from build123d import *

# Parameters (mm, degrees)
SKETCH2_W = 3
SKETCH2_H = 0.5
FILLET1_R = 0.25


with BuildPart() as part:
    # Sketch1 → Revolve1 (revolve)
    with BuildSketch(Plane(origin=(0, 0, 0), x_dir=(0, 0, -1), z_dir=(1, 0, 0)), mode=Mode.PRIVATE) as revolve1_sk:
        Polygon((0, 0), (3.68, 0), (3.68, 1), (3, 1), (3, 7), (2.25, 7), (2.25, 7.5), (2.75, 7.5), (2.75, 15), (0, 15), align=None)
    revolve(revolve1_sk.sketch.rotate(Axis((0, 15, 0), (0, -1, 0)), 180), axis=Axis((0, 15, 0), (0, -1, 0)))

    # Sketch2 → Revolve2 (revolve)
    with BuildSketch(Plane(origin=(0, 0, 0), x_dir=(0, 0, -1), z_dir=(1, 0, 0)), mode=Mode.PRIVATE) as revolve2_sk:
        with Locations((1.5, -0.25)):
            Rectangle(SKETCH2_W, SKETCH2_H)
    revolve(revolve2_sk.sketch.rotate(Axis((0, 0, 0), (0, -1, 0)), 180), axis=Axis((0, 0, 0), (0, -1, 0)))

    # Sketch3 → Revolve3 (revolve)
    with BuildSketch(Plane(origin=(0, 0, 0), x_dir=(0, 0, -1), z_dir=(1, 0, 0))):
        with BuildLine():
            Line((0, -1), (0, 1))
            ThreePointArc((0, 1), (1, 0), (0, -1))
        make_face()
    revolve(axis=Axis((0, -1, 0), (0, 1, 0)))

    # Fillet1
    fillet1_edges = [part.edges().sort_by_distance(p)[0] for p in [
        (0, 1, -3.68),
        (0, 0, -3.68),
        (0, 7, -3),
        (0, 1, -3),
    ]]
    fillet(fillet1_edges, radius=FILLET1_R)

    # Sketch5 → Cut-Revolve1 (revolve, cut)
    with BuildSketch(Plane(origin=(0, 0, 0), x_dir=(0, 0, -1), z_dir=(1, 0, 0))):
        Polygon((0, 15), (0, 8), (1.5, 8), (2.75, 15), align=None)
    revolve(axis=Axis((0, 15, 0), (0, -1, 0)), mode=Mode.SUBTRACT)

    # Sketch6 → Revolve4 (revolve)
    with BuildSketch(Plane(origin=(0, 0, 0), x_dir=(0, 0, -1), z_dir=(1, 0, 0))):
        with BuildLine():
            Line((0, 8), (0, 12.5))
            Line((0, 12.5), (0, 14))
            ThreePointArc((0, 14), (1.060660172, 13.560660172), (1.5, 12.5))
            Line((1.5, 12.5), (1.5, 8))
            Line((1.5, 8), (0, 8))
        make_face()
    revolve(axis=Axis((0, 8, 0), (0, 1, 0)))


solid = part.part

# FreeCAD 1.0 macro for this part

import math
import FreeCAD as App
import Part
import Sketcher

V = App.Vector


def edges_at(feature, points):
    """Names of the edges that pass closest to the given points."""
    edges = feature.Shape.Edges
    near = lambda p: min(range(len(edges)), key=lambda i: edges[i].distToShape(Part.Vertex(*p))[0])
    return sorted({f"Edge{near(p) + 1}" for p in points})


def add_polygon(sketch, points):
    """Adds a closed chain of lines whose ends are joined by coincident constraints."""
    first, n = sketch.GeometryCount, len(points)
    for a, b in zip(points, points[1:] + points[:1]):
        sketch.addGeometry(Part.LineSegment(App.Vector(*a, 0), App.Vector(*b, 0)), False)
    for i in range(n):
        sketch.addConstraint(Sketcher.Constraint("Coincident", first + i, 2, first + (i + 1) % n, 1))

doc = App.newDocument("Part")
body = doc.addObject("PartDesign::Body", "Body")

# Sketch on YZ plane
sketch1 = body.newObject("Sketcher::SketchObject", "Sketch")
sketch1.AttachmentSupport = (doc.getObject("YZ_Plane"), [""])
sketch1.MapMode = "FlatFace"
add_polygon(sketch1, [(0, 0), (0, -3.7), (1, -3.7), (1, -3), (7, -3), (7, -2.2), (7.5, -2.2), (7.5, -2.8), (15, -2.8), (15, 0)])  # lines 0-9
sketch1.addConstraint([
    Sketcher.Constraint("Vertical", 0),
    Sketcher.Constraint("Horizontal", 1),
    Sketcher.Constraint("Vertical", 2),
    Sketcher.Constraint("Horizontal", 3),
    Sketcher.Constraint("Vertical", 4),
    Sketcher.Constraint("Horizontal", 5),
    Sketcher.Constraint("Vertical", 6),
    Sketcher.Constraint("Horizontal", 7),
    Sketcher.Constraint("Vertical", 8),
    Sketcher.Constraint("Horizontal", 9),
    Sketcher.Constraint("Coincident", 9, 2, -1, 1),
    Sketcher.Constraint("Equal", 5, 6),
    Sketcher.Constraint("DistanceX", 1, 1, 1, 2, 1.0),
    Sketcher.Constraint("DistanceX", 3, 1, 3, 2, 6.0),
    Sketcher.Constraint("DistanceX", 9, 2, 9, 1, 15.0),
    Sketcher.Constraint("DistanceX", 5, 1, 5, 2, 0.5),
    Sketcher.Constraint("DistanceY", 2, 2, -1, 1, 3.0),
    Sketcher.Constraint("DistanceY", 0, 2, 0, 1, 3.68),
    Sketcher.Constraint("DistanceY", 4, 1, 4, 2, 0.75),
])
revolution = body.newObject("PartDesign::Revolution", "Revolution")
revolution.Profile = sketch1
revolution.ReferenceAxis = (sketch1, ["H_Axis"])
revolution.Angle = 360

# Sketch on YZ plane
sketch2 = body.newObject("Sketcher::SketchObject", "Sketch001")
sketch2.AttachmentSupport = (doc.getObject("YZ_Plane"), [""])
sketch2.MapMode = "FlatFace"
add_polygon(sketch2, [(0, 0), (-0.5, 0), (-0.5, -3), (0, -3)])  # lines 0-3
sketch2.addConstraint([
    Sketcher.Constraint("Horizontal", 0),
    Sketcher.Constraint("Vertical", 1),
    Sketcher.Constraint("Horizontal", 2),
    Sketcher.Constraint("Vertical", 3),
    Sketcher.Constraint("Coincident", 3, 2, -1, 1),
    Sketcher.Constraint("DistanceY", 1, 2, 1, 1, 3.0),
    Sketcher.Constraint("DistanceX", 0, 2, 0, 1, 0.5),
])
revolution2 = body.newObject("PartDesign::Revolution", "Revolution001")
revolution2.Profile = sketch2
revolution2.ReferenceAxis = (sketch2, ["H_Axis"])
revolution2.Angle = 360

# Sketch on YZ plane
sketch3 = body.newObject("Sketcher::SketchObject", "Sketch002")
sketch3.AttachmentSupport = (doc.getObject("YZ_Plane"), [""])
sketch3.MapMode = "FlatFace"
sketch3.addGeometry([
    Part.LineSegment(V(1, 0, 0), V(-1, 0, 0)),
    Part.ArcOfCircle(Part.Circle(V(0, 0, 0), V(0, 0, 1), 1), math.radians(180), math.radians(360)),
], False)
sketch3.addConstraint([
    Sketcher.Constraint("Coincident", 0, 1, 1, 2),
    Sketcher.Constraint("Coincident", 1, 1, 0, 2),
    Sketcher.Constraint("Horizontal", 0),
    Sketcher.Constraint("Coincident", 1, 3, -1, 1),
    Sketcher.Constraint("PointOnObject", 0, 1, -1),
    Sketcher.Constraint("Radius", 1, 1.0),
])
revolution3 = body.newObject("PartDesign::Revolution", "Revolution002")
revolution3.Profile = sketch3
revolution3.ReferenceAxis = (sketch3, ["H_Axis"])
revolution3.Angle = 360
doc.recompute()

fillet = body.newObject("PartDesign::Fillet", "Fillet")
fillet.Base = (revolution3, edges_at(revolution3, [
    (0, 1, -3.68),
    (0, 0, -3.68),
    (0, 7, -3),
    (0, 1, -3),
]))
fillet.Radius = 0.25

# Sketch on YZ plane
sketch4 = body.newObject("Sketcher::SketchObject", "Sketch003")
sketch4.AttachmentSupport = (doc.getObject("YZ_Plane"), [""])
sketch4.MapMode = "FlatFace"
add_polygon(sketch4, [(15, 0), (8, 0), (8, -1.5), (15, -2.8)])  # lines 0-3
sketch4.addConstraint([
    Sketcher.Constraint("Horizontal", 0),
    Sketcher.Constraint("Vertical", 1),
    Sketcher.Constraint("Vertical", 3),
    Sketcher.Constraint("PointOnObject", 0, 2, -1),
    Sketcher.Constraint("DistanceX", 0, 2, 0, 1, 7.0),
    Sketcher.Constraint("DistanceY", 1, 2, 1, 1, 1.5),
    Sketcher.Constraint("DistanceX", -1, 1, 0, 2, 8.0),
    Sketcher.Constraint("DistanceY", 3, 1, 3, 2, 2.75),
])
groove = body.newObject("PartDesign::Groove", "Groove")
groove.Profile = sketch4
groove.ReferenceAxis = (sketch4, ["H_Axis"])
groove.Angle = 360

# Sketch on YZ plane
sketch5 = body.newObject("Sketcher::SketchObject", "Sketch004")
sketch5.AttachmentSupport = (doc.getObject("YZ_Plane"), [""])
sketch5.MapMode = "FlatFace"
sketch5.addGeometry([
    Part.LineSegment(V(14, 0, 0), V(8, 0, 0)),
    Part.LineSegment(V(8, 0, 0), V(8, -1.5, 0)),
    Part.LineSegment(V(8, -1.5, 0), V(12.5, -1.5, 0)),
    Part.ArcOfCircle(Part.Circle(V(12.5, 0, 0), V(0, 0, 1), 1.5), math.radians(-90), math.radians(0)),
], False)
sketch5.addConstraint([
    Sketcher.Constraint("Coincident", 0, 2, 1, 1),
    Sketcher.Constraint("Coincident", 1, 2, 2, 1),
    Sketcher.Constraint("Tangent", 2, 2, 3, 1),
    Sketcher.Constraint("Coincident", 3, 2, 0, 1),
    Sketcher.Constraint("Horizontal", 0),
    Sketcher.Constraint("Vertical", 1),
    Sketcher.Constraint("Horizontal", 2),
    Sketcher.Constraint("PointOnObject", 3, 3, -1),
    Sketcher.Constraint("PointOnObject", 0, 2, -1),
    Sketcher.Constraint("Radius", 3, 1.5),
    Sketcher.Constraint("DistanceX", 0, 2, 0, 1, 6.0),
    Sketcher.Constraint("DistanceX", -1, 1, 0, 2, 8.0),
])
revolution4 = body.newObject("PartDesign::Revolution", "Revolution003")
revolution4.Profile = sketch5
revolution4.ReferenceAxis = (sketch5, ["H_Axis"])
revolution4.Angle = 360

doc.recompute()
